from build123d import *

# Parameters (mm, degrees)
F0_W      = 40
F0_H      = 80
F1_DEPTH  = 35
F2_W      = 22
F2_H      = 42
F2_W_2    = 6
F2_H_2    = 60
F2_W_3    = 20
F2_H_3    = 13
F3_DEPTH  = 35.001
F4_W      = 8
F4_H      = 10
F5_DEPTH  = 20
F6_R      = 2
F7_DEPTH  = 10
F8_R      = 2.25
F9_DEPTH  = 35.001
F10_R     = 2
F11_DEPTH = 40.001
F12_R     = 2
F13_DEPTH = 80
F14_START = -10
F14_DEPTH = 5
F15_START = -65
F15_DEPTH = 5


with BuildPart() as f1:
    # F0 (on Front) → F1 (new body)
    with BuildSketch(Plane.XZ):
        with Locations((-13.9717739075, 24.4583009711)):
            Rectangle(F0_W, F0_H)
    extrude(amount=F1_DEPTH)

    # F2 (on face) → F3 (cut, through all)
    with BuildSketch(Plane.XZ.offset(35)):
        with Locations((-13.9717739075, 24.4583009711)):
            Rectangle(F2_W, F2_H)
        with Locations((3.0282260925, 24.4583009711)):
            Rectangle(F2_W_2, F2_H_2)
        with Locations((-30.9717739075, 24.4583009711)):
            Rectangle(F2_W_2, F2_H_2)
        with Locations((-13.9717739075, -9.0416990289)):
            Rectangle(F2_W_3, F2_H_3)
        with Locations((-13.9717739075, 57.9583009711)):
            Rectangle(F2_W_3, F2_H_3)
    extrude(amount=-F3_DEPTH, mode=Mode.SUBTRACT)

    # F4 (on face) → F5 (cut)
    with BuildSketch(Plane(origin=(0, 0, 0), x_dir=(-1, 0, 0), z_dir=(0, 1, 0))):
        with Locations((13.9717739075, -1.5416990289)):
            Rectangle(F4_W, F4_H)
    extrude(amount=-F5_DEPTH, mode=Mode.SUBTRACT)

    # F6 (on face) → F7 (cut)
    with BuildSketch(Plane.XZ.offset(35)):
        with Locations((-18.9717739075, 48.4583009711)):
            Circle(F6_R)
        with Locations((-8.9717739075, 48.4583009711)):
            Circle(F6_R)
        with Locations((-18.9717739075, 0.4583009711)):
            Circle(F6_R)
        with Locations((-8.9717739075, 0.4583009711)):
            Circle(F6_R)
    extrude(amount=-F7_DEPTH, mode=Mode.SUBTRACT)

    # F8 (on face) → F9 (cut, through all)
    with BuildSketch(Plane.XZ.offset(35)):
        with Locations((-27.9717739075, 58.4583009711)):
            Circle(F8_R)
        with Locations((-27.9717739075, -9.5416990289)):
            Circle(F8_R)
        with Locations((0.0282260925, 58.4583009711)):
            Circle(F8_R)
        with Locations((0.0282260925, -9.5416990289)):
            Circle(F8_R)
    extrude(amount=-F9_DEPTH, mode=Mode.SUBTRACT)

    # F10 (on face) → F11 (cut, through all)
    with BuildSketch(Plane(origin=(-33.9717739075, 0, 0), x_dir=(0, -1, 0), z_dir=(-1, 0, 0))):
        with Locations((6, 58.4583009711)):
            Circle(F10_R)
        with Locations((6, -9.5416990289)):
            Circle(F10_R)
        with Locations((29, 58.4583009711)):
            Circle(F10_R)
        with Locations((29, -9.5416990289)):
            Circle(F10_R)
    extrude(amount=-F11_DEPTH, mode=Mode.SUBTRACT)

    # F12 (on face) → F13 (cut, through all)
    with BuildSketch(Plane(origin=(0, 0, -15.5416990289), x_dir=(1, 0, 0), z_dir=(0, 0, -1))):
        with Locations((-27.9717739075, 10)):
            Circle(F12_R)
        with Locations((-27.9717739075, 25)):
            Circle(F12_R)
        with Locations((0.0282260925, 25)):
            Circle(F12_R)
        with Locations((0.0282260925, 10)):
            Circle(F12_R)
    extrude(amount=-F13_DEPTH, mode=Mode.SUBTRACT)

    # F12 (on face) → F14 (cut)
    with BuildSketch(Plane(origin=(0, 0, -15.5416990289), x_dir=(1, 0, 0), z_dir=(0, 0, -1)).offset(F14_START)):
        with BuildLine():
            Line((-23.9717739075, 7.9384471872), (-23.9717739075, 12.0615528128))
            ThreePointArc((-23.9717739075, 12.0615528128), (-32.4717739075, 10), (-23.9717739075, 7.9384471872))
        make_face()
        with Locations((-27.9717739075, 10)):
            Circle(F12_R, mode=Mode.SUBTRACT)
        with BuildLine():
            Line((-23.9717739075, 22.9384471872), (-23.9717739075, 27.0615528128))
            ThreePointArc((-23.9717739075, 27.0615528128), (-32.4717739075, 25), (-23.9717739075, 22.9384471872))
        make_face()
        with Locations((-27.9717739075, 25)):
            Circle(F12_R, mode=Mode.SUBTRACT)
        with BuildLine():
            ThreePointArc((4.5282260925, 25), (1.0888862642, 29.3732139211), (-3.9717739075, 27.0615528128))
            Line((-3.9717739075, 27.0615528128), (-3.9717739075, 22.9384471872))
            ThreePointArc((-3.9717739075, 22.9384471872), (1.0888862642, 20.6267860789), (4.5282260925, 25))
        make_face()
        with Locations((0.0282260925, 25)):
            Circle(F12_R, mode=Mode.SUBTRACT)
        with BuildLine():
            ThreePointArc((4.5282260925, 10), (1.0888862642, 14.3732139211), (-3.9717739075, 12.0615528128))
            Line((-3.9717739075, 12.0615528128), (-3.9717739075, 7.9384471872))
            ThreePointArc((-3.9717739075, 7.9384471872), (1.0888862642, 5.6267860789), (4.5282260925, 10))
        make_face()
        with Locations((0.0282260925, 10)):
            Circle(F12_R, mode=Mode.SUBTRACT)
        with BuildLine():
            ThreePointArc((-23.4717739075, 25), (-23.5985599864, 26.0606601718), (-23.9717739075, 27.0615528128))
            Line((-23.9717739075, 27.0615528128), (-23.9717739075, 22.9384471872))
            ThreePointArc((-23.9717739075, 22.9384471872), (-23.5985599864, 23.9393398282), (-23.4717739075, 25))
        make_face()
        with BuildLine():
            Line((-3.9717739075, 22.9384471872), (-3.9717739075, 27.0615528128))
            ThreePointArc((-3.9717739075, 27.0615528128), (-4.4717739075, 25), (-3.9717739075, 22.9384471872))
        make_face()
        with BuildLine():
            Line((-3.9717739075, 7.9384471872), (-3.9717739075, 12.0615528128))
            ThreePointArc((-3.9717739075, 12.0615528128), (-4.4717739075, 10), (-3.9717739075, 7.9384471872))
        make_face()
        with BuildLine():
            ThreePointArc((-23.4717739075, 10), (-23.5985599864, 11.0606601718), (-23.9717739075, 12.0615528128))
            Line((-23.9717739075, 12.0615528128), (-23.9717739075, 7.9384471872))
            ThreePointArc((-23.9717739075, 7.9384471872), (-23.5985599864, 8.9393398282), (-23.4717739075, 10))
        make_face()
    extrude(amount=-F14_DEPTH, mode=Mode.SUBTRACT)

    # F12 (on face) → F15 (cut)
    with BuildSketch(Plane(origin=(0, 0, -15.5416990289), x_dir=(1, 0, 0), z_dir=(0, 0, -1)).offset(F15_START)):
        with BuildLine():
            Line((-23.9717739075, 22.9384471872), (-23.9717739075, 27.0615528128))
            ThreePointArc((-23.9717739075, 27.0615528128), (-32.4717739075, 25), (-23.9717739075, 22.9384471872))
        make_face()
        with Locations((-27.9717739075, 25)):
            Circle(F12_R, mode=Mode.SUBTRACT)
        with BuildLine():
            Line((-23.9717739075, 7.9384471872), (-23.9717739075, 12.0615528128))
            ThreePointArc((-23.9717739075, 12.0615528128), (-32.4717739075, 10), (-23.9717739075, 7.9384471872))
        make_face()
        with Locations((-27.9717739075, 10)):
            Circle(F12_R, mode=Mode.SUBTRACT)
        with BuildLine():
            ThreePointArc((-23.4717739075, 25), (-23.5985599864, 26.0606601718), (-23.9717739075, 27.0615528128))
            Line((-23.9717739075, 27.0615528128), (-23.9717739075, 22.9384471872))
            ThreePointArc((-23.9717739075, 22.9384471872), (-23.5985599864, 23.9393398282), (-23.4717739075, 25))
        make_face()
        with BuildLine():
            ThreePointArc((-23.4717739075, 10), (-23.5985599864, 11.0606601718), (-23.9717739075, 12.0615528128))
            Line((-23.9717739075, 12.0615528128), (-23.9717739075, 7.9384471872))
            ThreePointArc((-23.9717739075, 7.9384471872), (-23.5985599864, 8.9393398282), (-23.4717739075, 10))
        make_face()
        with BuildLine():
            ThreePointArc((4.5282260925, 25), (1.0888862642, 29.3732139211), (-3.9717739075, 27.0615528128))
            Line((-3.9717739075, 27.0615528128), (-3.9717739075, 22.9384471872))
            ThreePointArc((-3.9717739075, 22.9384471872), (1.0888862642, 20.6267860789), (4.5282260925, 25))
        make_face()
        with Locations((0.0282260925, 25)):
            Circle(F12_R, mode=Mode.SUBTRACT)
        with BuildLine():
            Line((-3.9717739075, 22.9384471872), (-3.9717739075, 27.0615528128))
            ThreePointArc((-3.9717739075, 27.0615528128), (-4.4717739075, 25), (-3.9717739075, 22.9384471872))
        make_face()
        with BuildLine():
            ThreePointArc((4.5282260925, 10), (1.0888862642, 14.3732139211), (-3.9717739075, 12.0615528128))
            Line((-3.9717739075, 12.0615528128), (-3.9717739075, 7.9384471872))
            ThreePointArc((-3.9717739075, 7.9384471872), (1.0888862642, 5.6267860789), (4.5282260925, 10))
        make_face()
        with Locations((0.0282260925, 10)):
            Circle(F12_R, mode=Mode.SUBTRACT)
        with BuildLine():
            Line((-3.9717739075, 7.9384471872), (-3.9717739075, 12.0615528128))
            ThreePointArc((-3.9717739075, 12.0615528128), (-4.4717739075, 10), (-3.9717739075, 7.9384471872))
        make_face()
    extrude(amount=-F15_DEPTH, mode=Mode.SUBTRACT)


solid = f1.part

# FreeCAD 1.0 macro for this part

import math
import FreeCAD as App
import Part
import Sketcher
Q = App.Units.Quantity

doc = App.newDocument("Part")
body = doc.addObject("PartDesign::Body", "Body")

# Sketch on XZ plane
sketch1 = doc.addObject("Sketcher::SketchObject", "Sketch")
body.addObject(sketch1)
sketch1.AttachmentSupport = (doc.XZ_Plane, [""])
sketch1.MapMode = "FlatFace"
sketch1.addGeometry([
    Part.LineSegment(App.Vector(-34, 64, 0), App.Vector(-34, -16, 0)),
    Part.LineSegment(App.Vector(-34, -16, 0), App.Vector(6, -16, 0)),
    Part.LineSegment(App.Vector(6, -16, 0), App.Vector(6, 64, 0)),
    Part.LineSegment(App.Vector(6, 64, 0), App.Vector(-34, 64, 0)),
], False)
sketch1.addConstraint([
    Sketcher.Constraint("Coincident", 0, 2, 1, 1),
    Sketcher.Constraint("Coincident", 1, 2, 2, 1),
    Sketcher.Constraint("Coincident", 2, 2, 3, 1),
    Sketcher.Constraint("Coincident", 3, 2, 0, 1),
    Sketcher.Constraint("Vertical", 0),
    Sketcher.Constraint("Horizontal", 1),
    Sketcher.Constraint("Vertical", 2),
    Sketcher.Constraint("Horizontal", 3),
    Sketcher.Constraint("DistanceX", 1, 1, 1, 2, Q("40 mm")),
    Sketcher.Constraint("DistanceY", 0, 2, 0, 1, Q("80 mm")),
    Sketcher.Constraint("DistanceY", 0, 2, -1, 1, Q("15.541699 mm")),
    Sketcher.Constraint("DistanceX", 0, 2, -1, 1, Q("33.971774 mm")),
])
pad1 = doc.addObject("PartDesign::Pad", "Pad")
body.addObject(pad1)
pad1.Profile = sketch1
pad1.Length = 35

# Sketch on XZ plane
sketch2 = doc.addObject("Sketcher::SketchObject", "Sketch001")
body.addObject(sketch2)
sketch2.AttachmentSupport = (doc.XZ_Plane, [""])
sketch2.MapMode = "FlatFace"
sketch2.AttachmentOffset = App.Placement(App.Vector(0, 0, 35), App.Rotation())
sketch2.addGeometry([
    Part.LineSegment(App.Vector(-25, 45, 0), App.Vector(-25, 3, 0)),  # 0
    Part.LineSegment(App.Vector(-25, 3, 0), App.Vector(-3, 3, 0)),  # 1
    Part.LineSegment(App.Vector(-3, 3, 0), App.Vector(-3, 45, 0)),  # 2
    Part.LineSegment(App.Vector(-3, 45, 0), App.Vector(-25, 45, 0)),  # 3
    Part.LineSegment(App.Vector(0, 54, 0), App.Vector(0, -6, 0)),  # 4
    Part.LineSegment(App.Vector(0, -6, 0), App.Vector(6, -6, 0)),  # 5
    Part.LineSegment(App.Vector(6, -6, 0), App.Vector(6, 54, 0)),  # 6
    Part.LineSegment(App.Vector(6, 54, 0), App.Vector(0, 54, 0)),  # 7
    Part.LineSegment(App.Vector(-34, 54, 0), App.Vector(-34, -6, 0)),  # 8
    Part.LineSegment(App.Vector(-34, -6, 0), App.Vector(-28, -6, 0)),  # 9
    Part.LineSegment(App.Vector(-28, -6, 0), App.Vector(-28, 54, 0)),  # 10
    Part.LineSegment(App.Vector(-28, 54, 0), App.Vector(-34, 54, 0)),  # 11
    Part.LineSegment(App.Vector(-24, -3, 0), App.Vector(-24, -16, 0)),  # 12
    Part.LineSegment(App.Vector(-24, -16, 0), App.Vector(-4, -16, 0)),  # 13
    Part.LineSegment(App.Vector(-4, -16, 0), App.Vector(-4, -3, 0)),  # 14
    Part.LineSegment(App.Vector(-4, -3, 0), App.Vector(-24, -3, 0)),  # 15
    Part.LineSegment(App.Vector(-24, 64, 0), App.Vector(-24, 51, 0)),  # 16
    Part.LineSegment(App.Vector(-24, 51, 0), App.Vector(-4, 51, 0)),  # 17
    Part.LineSegment(App.Vector(-4, 51, 0), App.Vector(-4, 64, 0)),  # 18
    Part.LineSegment(App.Vector(-4, 64, 0), App.Vector(-24, 64, 0)),  # 19
], False)
sketch2.addConstraint([
    Sketcher.Constraint("Coincident", 0, 2, 1, 1),
    Sketcher.Constraint("Coincident", 1, 2, 2, 1),
    Sketcher.Constraint("Coincident", 2, 2, 3, 1),
    Sketcher.Constraint("Coincident", 3, 2, 0, 1),
    Sketcher.Constraint("Coincident", 4, 2, 5, 1),
    Sketcher.Constraint("Coincident", 5, 2, 6, 1),
    Sketcher.Constraint("Coincident", 6, 2, 7, 1),
    Sketcher.Constraint("Coincident", 7, 2, 4, 1),
    Sketcher.Constraint("Coincident", 8, 2, 9, 1),
    Sketcher.Constraint("Coincident", 9, 2, 10, 1),
    Sketcher.Constraint("Coincident", 10, 2, 11, 1),
    Sketcher.Constraint("Coincident", 11, 2, 8, 1),
    Sketcher.Constraint("Coincident", 12, 2, 13, 1),
    Sketcher.Constraint("Coincident", 13, 2, 14, 1),
    Sketcher.Constraint("Coincident", 14, 2, 15, 1),
    Sketcher.Constraint("Coincident", 15, 2, 12, 1),
    Sketcher.Constraint("Coincident", 16, 2, 17, 1),
    Sketcher.Constraint("Coincident", 17, 2, 18, 1),
    Sketcher.Constraint("Coincident", 18, 2, 19, 1),
    Sketcher.Constraint("Coincident", 19, 2, 16, 1),
    Sketcher.Constraint("Vertical", 0),
    Sketcher.Constraint("Horizontal", 1),
    Sketcher.Constraint("Vertical", 2),
    Sketcher.Constraint("Horizontal", 3),
    Sketcher.Constraint("Vertical", 4),
    Sketcher.Constraint("Horizontal", 5),
    Sketcher.Constraint("Vertical", 6),
    Sketcher.Constraint("Horizontal", 7),
    Sketcher.Constraint("Vertical", 8),
    Sketcher.Constraint("Horizontal", 9),
    Sketcher.Constraint("Vertical", 10),
    Sketcher.Constraint("Horizontal", 11),
    Sketcher.Constraint("Vertical", 12),
    Sketcher.Constraint("Horizontal", 13),
    Sketcher.Constraint("Vertical", 14),
    Sketcher.Constraint("Horizontal", 15),
    Sketcher.Constraint("Vertical", 16),
    Sketcher.Constraint("Horizontal", 17),
    Sketcher.Constraint("Vertical", 18),
    Sketcher.Constraint("Horizontal", 19),
    Sketcher.Constraint("Horizontal", 5, 2, 8, 2),
    Sketcher.Constraint("Horizontal", 7, 2, 10, 2),
    Sketcher.Constraint("Vertical", 15, 2, 16, 2),
    Sketcher.Constraint("Vertical", 14, 2, 17, 2),
    Sketcher.Constraint("Equal", 7, 9),
    Sketcher.Constraint("Equal", 14, 16),
    Sketcher.Constraint("DistanceX", 1, 1, 1, 2, Q("22 mm")),
    Sketcher.Constraint("DistanceX", 5, 1, 5, 2, Q("6 mm")),
    Sketcher.Constraint("DistanceX", 13, 1, 13, 2, Q("20 mm")),
    Sketcher.Constraint("DistanceY", 0, 2, 0, 1, Q("42 mm")),
    Sketcher.Constraint("DistanceY", 4, 2, 4, 1, Q("60 mm")),
    Sketcher.Constraint("DistanceY", 12, 2, 12, 1, Q("13 mm")),
    Sketcher.Constraint("DistanceX", 1, 2, 4, 2, Q("3 mm")),
    Sketcher.Constraint("DistanceY", 4, 2, 1, 2, Q("9 mm")),
    Sketcher.Constraint("DistanceX", 8, 2, 0, 2, Q("9 mm")),
    Sketcher.Constraint("DistanceX", 9, 2, 12, 2, Q("4 mm")),
    Sketcher.Constraint("DistanceY", 12, 2, 9, 2, Q("10 mm")),
    Sketcher.Constraint("DistanceY", 16, 2, 10, 2, Q("3 mm")),
    Sketcher.Constraint("DistanceY", -1, 1, 0, 2, Q("3.458301 mm")),
    Sketcher.Constraint("DistanceX", 0, 2, -1, 1, Q("24.971774 mm")),
])
pocket1 = doc.addObject("PartDesign::Pocket", "Pocket")
body.addObject(pocket1)
pocket1.Profile = sketch2
pocket1.Type = "ThroughAll"

# Sketch on XZ plane
sketch3 = doc.addObject("Sketcher::SketchObject", "Sketch002")
body.addObject(sketch3)
sketch3.AttachmentSupport = (doc.XZ_Plane, [""])
sketch3.MapMode = "FlatFace"
sketch3.addGeometry([
    Part.LineSegment(App.Vector(-10, 3, 0), App.Vector(-10, -7, 0)),
    Part.LineSegment(App.Vector(-10, -7, 0), App.Vector(-18, -7, 0)),
    Part.LineSegment(App.Vector(-18, -7, 0), App.Vector(-18, 3, 0)),
    Part.LineSegment(App.Vector(-18, 3, 0), App.Vector(-10, 3, 0)),
], False)
sketch3.addConstraint([
    Sketcher.Constraint("Coincident", 0, 2, 1, 1),
    Sketcher.Constraint("Coincident", 1, 2, 2, 1),
    Sketcher.Constraint("Coincident", 2, 2, 3, 1),
    Sketcher.Constraint("Coincident", 3, 2, 0, 1),
    Sketcher.Constraint("Vertical", 0),
    Sketcher.Constraint("Horizontal", 1),
    Sketcher.Constraint("Vertical", 2),
    Sketcher.Constraint("Horizontal", 3),
    Sketcher.Constraint("DistanceX", 1, 2, 1, 1, Q("8 mm")),
    Sketcher.Constraint("DistanceY", 0, 2, 0, 1, Q("10 mm")),
    Sketcher.Constraint("DistanceY", 0, 2, -1, 1, Q("6.541699 mm")),
    Sketcher.Constraint("DistanceX", 0, 2, -1, 1, Q("9.971774 mm")),
])
pocket2 = doc.addObject("PartDesign::Pocket", "Pocket001")
body.addObject(pocket2)
pocket2.Profile = sketch3
pocket2.Length = 20
pocket2.Reversed = True

# Sketch on XZ plane
sketch4 = doc.addObject("Sketcher::SketchObject", "Sketch003")
body.addObject(sketch4)
sketch4.AttachmentSupport = (doc.XZ_Plane, [""])
sketch4.MapMode = "FlatFace"
sketch4.AttachmentOffset = App.Placement(App.Vector(0, 0, 35), App.Rotation())
sketch4.addGeometry([
    Part.Circle(App.Vector(-19, 48.5, 0), App.Vector(0, 0, 1), 2),
    Part.Circle(App.Vector(-9, 48.5, 0), App.Vector(0, 0, 1), 2),
    Part.Circle(App.Vector(-19, 0.5, 0), App.Vector(0, 0, 1), 2),
    Part.Circle(App.Vector(-9, 0.5, 0), App.Vector(0, 0, 1), 2),
], False)
sketch4.addConstraint([
    Sketcher.Constraint("Equal", 0, 1),
    Sketcher.Constraint("Equal", 1, 2),
    Sketcher.Constraint("Equal", 2, 3),
    Sketcher.Constraint("Horizontal", 0, 3, 1, 3),
    Sketcher.Constraint("Horizontal", 2, 3, 3, 3),
    Sketcher.Constraint("Vertical", 0, 3, 2, 3),
    Sketcher.Constraint("Vertical", 1, 3, 3, 3),
    Sketcher.Constraint("Diameter", 0, Q("4 mm")),
    Sketcher.Constraint("DistanceX", 0, 3, 1, 3, Q("10 mm")),
    Sketcher.Constraint("DistanceY", 2, 3, 0, 3, Q("48 mm")),
    Sketcher.Constraint("DistanceY", -1, 1, 0, 3, Q("48.458301 mm")),
    Sketcher.Constraint("DistanceX", 0, 3, -1, 1, Q("18.971774 mm")),
])
pocket3 = doc.addObject("PartDesign::Pocket", "Pocket002")
body.addObject(pocket3)
pocket3.Profile = sketch4
pocket3.Length = 10

# Sketch on XZ plane
sketch5 = doc.addObject("Sketcher::SketchObject", "Sketch004")
body.addObject(sketch5)
sketch5.AttachmentSupport = (doc.XZ_Plane, [""])
sketch5.MapMode = "FlatFace"
sketch5.AttachmentOffset = App.Placement(App.Vector(0, 0, 35), App.Rotation())
sketch5.addGeometry([
    Part.Circle(App.Vector(-28, 58.5, 0), App.Vector(0, 0, 1), 2.2),
    Part.Circle(App.Vector(-28, -9.5, 0), App.Vector(0, 0, 1), 2.2),
    Part.Circle(App.Vector(0, 58.5, 0), App.Vector(0, 0, 1), 2.2),
    Part.Circle(App.Vector(0, -9.5, 0), App.Vector(0, 0, 1), 2.2),
], False)
sketch5.addConstraint([
    Sketcher.Constraint("Equal", 0, 1),
    Sketcher.Constraint("Equal", 1, 2),
    Sketcher.Constraint("Equal", 2, 3),
    Sketcher.Constraint("Horizontal", 0, 3, 2, 3),
    Sketcher.Constraint("Horizontal", 1, 3, 3, 3),
    Sketcher.Constraint("Vertical", 0, 3, 1, 3),
    Sketcher.Constraint("Vertical", 2, 3, 3, 3),
    Sketcher.Constraint("Diameter", 0, Q("4.5 mm")),
    Sketcher.Constraint("DistanceY", 1, 3, 0, 3, Q("68 mm")),
    Sketcher.Constraint("DistanceX", 0, 3, 2, 3, Q("28 mm")),
    Sketcher.Constraint("DistanceY", -1, 1, 0, 3, Q("58.458301 mm")),
    Sketcher.Constraint("DistanceX", 0, 3, -1, 1, Q("27.971774 mm")),
])
pocket4 = doc.addObject("PartDesign::Pocket", "Pocket003")
body.addObject(pocket4)
pocket4.Profile = sketch5
pocket4.Type = "ThroughAll"

# Sketch on YZ plane
sketch6 = doc.addObject("Sketcher::SketchObject", "Sketch005")
body.addObject(sketch6)
sketch6.AttachmentSupport = (doc.YZ_Plane, [""])
sketch6.MapMode = "FlatFace"
sketch6.AttachmentOffset = App.Placement(App.Vector(0, 0, -33.971774), App.Rotation())
sketch6.addGeometry([
    Part.Circle(App.Vector(-6, 58.5, 0), App.Vector(0, 0, 1), 2),
    Part.Circle(App.Vector(-6, -9.5, 0), App.Vector(0, 0, 1), 2),
    Part.Circle(App.Vector(-29, 58.5, 0), App.Vector(0, 0, 1), 2),
    Part.Circle(App.Vector(-29, -9.5, 0), App.Vector(0, 0, 1), 2),
], False)
sketch6.addConstraint([
    Sketcher.Constraint("Equal", 0, 1),
    Sketcher.Constraint("Equal", 1, 2),
    Sketcher.Constraint("Equal", 2, 3),
    Sketcher.Constraint("Horizontal", 0, 3, 2, 3),
    Sketcher.Constraint("Horizontal", 1, 3, 3, 3),
    Sketcher.Constraint("Vertical", 0, 3, 1, 3),
    Sketcher.Constraint("Vertical", 2, 3, 3, 3),
    Sketcher.Constraint("Diameter", 0, Q("4 mm")),
    Sketcher.Constraint("DistanceX", 0, 3, -1, 1, Q("6 mm")),
    Sketcher.Constraint("DistanceX", 2, 3, -1, 1, Q("29 mm")),
    Sketcher.Constraint("DistanceY", 1, 3, 0, 3, Q("68 mm")),
    Sketcher.Constraint("DistanceY", -1, 1, 0, 3, Q("58.458301 mm")),
])
pocket5 = doc.addObject("PartDesign::Pocket", "Pocket004")
body.addObject(pocket5)
pocket5.Profile = sketch6
pocket5.Type = "ThroughAll"
pocket5.Reversed = True

# Sketch on XY plane
sketch7 = doc.addObject("Sketcher::SketchObject", "Sketch006")
body.addObject(sketch7)
sketch7.AttachmentSupport = (doc.XY_Plane, [""])
sketch7.MapMode = "FlatFace"
sketch7.AttachmentOffset = App.Placement(App.Vector(0, 0, -15.541699), App.Rotation())
sketch7.addGeometry([
    Part.Circle(App.Vector(-28, -10, 0), App.Vector(0, 0, 1), 2),
    Part.Circle(App.Vector(-28, -25, 0), App.Vector(0, 0, 1), 2),
    Part.Circle(App.Vector(0, -25, 0), App.Vector(0, 0, 1), 2),
    Part.Circle(App.Vector(0, -10, 0), App.Vector(0, 0, 1), 2),
], False)
sketch7.addConstraint([
    Sketcher.Constraint("Equal", 0, 1),
    Sketcher.Constraint("Equal", 1, 2),
    Sketcher.Constraint("Equal", 2, 3),
    Sketcher.Constraint("Horizontal", 1, 3, 2, 3),
    Sketcher.Constraint("Horizontal", 0, 3, 3, 3),
    Sketcher.Constraint("Vertical", 0, 3, 1, 3),
    Sketcher.Constraint("Vertical", 2, 3, 3, 3),
    Sketcher.Constraint("Diameter", 0, Q("4 mm")),
    Sketcher.Constraint("DistanceY", 0, 3, -1, 1, Q("10 mm")),
    Sketcher.Constraint("DistanceY", 1, 3, -1, 1, Q("25 mm")),
    Sketcher.Constraint("DistanceX", 1, 3, 2, 3, Q("28 mm")),
    Sketcher.Constraint("DistanceX", 0, 3, -1, 1, Q("27.971774 mm")),
])
pocket6 = doc.addObject("PartDesign::Pocket", "Pocket005")
body.addObject(pocket6)
pocket6.Profile = sketch7
pocket6.Type = "ThroughAll"
pocket6.Reversed = True

# Sketch on XY plane
sketch8 = doc.addObject("Sketcher::SketchObject", "Sketch007")
body.addObject(sketch8)
sketch8.AttachmentSupport = (doc.XY_Plane, [""])
sketch8.MapMode = "FlatFace"
sketch8.AttachmentOffset = App.Placement(App.Vector(0, 0, -5.541699), App.Rotation())
sketch8.addGeometry([
    Part.ArcOfCircle(Part.Circle(App.Vector(-28, -10, 0), App.Vector(0, 0, 1), 4.5), math.radians(27), math.radians(333)),  # 0
    Part.ArcOfCircle(Part.Circle(App.Vector(-28, -10, 0), App.Vector(0, 0, 1), 4.5), math.radians(0), math.radians(27)),  # 1
    Part.ArcOfCircle(Part.Circle(App.Vector(-28, -10, 0), App.Vector(0, 0, 1), 4.5), math.radians(-27), math.radians(0)),  # 2
    Part.Circle(App.Vector(-28, -10, 0), App.Vector(0, 0, 1), 2),  # 3
    Part.ArcOfCircle(Part.Circle(App.Vector(-28, -25, 0), App.Vector(0, 0, 1), 4.5), math.radians(27), math.radians(333)),  # 4
    Part.ArcOfCircle(Part.Circle(App.Vector(-28, -25, 0), App.Vector(0, 0, 1), 4.5), math.radians(0), math.radians(27)),  # 5
    Part.ArcOfCircle(Part.Circle(App.Vector(-28, -25, 0), App.Vector(0, 0, 1), 4.5), math.radians(-27), math.radians(0)),  # 6
    Part.Circle(App.Vector(-28, -25, 0), App.Vector(0, 0, 1), 2),  # 7
    Part.ArcOfCircle(Part.Circle(App.Vector(0, -25, 0), App.Vector(0, 0, 1), 4.5), math.radians(-153), math.radians(0)),  # 8
    Part.ArcOfCircle(Part.Circle(App.Vector(0, -25, 0), App.Vector(0, 0, 1), 4.5), math.radians(153), math.radians(207)),  # 9
    Part.ArcOfCircle(Part.Circle(App.Vector(0, -25, 0), App.Vector(0, 0, 1), 4.5), math.radians(0), math.radians(153)),  # 10
    Part.Circle(App.Vector(0, -25, 0), App.Vector(0, 0, 1), 2),  # 11
    Part.ArcOfCircle(Part.Circle(App.Vector(0, -10, 0), App.Vector(0, 0, 1), 4.5), math.radians(-153), math.radians(0)),  # 12
    Part.ArcOfCircle(Part.Circle(App.Vector(0, -10, 0), App.Vector(0, 0, 1), 4.5), math.radians(153), math.radians(207)),  # 13
    Part.ArcOfCircle(Part.Circle(App.Vector(0, -10, 0), App.Vector(0, 0, 1), 4.5), math.radians(0), math.radians(153)),  # 14
    Part.Circle(App.Vector(0, -10, 0), App.Vector(0, 0, 1), 2),  # 15
], False)
sketch8.addConstraint([
    Sketcher.Constraint("Tangent", 0, 1, 1, 2),
    Sketcher.Constraint("Tangent", 1, 1, 2, 2),
    Sketcher.Constraint("Tangent", 2, 1, 0, 2),
    Sketcher.Constraint("Tangent", 4, 1, 5, 2),
    Sketcher.Constraint("Tangent", 5, 1, 6, 2),
    Sketcher.Constraint("Tangent", 6, 1, 4, 2),
    Sketcher.Constraint("Tangent", 8, 1, 9, 2),
    Sketcher.Constraint("Tangent", 9, 1, 10, 2),
    Sketcher.Constraint("Tangent", 10, 1, 8, 2),
    Sketcher.Constraint("Tangent", 12, 1, 13, 2),
    Sketcher.Constraint("Tangent", 13, 1, 14, 2),
    Sketcher.Constraint("Tangent", 14, 1, 12, 2),
    Sketcher.Constraint("Coincident", 3, 3, 0, 3),
    Sketcher.Constraint("Coincident", 7, 3, 4, 3),
    Sketcher.Constraint("Coincident", 11, 3, 8, 3),
    Sketcher.Constraint("Coincident", 15, 3, 12, 3),
    Sketcher.Constraint("Equal", 2, 4),
    Sketcher.Constraint("Equal", 3, 7),
    Sketcher.Constraint("Equal", 6, 8),
    Sketcher.Constraint("Equal", 7, 11),
    Sketcher.Constraint("Equal", 10, 12),
    Sketcher.Constraint("Equal", 11, 15),
    Sketcher.Constraint("Horizontal", 7, 3, 8, 3),
    Sketcher.Constraint("Horizontal", 3, 3, 12, 3),
    Sketcher.Constraint("Horizontal", 15, 3, 1, 1),
    Sketcher.Constraint("Horizontal", 11, 3, 5, 1),
    Sketcher.Constraint("Horizontal", 6, 1, 8, 1),
    Sketcher.Constraint("Horizontal", 4, 1, 9, 1),
    Sketcher.Constraint("Horizontal", 5, 1, 10, 1),
    Sketcher.Constraint("Horizontal", 2, 1, 12, 1),
    Sketcher.Constraint("Horizontal", 0, 1, 13, 1),
    Sketcher.Constraint("Horizontal", 1, 1, 14, 1),
    Sketcher.Constraint("Vertical", 3, 3, 4, 3),
    Sketcher.Constraint("Vertical", 11, 3, 12, 3),
    Sketcher.Constraint("Vertical", 0, 1, 2, 1),
    Sketcher.Constraint("Vertical", 2, 1, 4, 1),
    Sketcher.Constraint("Vertical", 4, 1, 6, 1),
    Sketcher.Constraint("Diameter", 3, Q("4 mm")),
    Sketcher.Constraint("Radius", 0, Q("4.5 mm")),
    Sketcher.Constraint("DistanceY", 0, 3, -1, 1, Q("10 mm")),
    Sketcher.Constraint("DistanceY", 4, 3, -1, 1, Q("25 mm")),
    Sketcher.Constraint("DistanceX", 4, 3, 8, 3, Q("28 mm")),
    Sketcher.Constraint("DistanceX", 0, 3, 0, 1, Q("4 mm")),
    Sketcher.Constraint("DistanceX", 0, 3, -1, 1, Q("27.971774 mm")),
])
pocket7 = doc.addObject("PartDesign::Pocket", "Pocket006")
body.addObject(pocket7)
pocket7.Profile = sketch8
pocket7.Length = 5
pocket7.Reversed = True

# Sketch on XY plane
sketch9 = doc.addObject("Sketcher::SketchObject", "Sketch008")
body.addObject(sketch9)
sketch9.AttachmentSupport = (doc.XY_Plane, [""])
sketch9.MapMode = "FlatFace"
sketch9.AttachmentOffset = App.Placement(App.Vector(0, 0, 49.458301), App.Rotation())
sketch9.addGeometry([
    Part.ArcOfCircle(Part.Circle(App.Vector(-28, -25, 0), App.Vector(0, 0, 1), 4.5), math.radians(27), math.radians(333)),  # 0
    Part.ArcOfCircle(Part.Circle(App.Vector(-28, -25, 0), App.Vector(0, 0, 1), 4.5), math.radians(0), math.radians(27)),  # 1
    Part.ArcOfCircle(Part.Circle(App.Vector(-28, -25, 0), App.Vector(0, 0, 1), 4.5), math.radians(-27), math.radians(0)),  # 2
    Part.Circle(App.Vector(-28, -25, 0), App.Vector(0, 0, 1), 2),  # 3
    Part.ArcOfCircle(Part.Circle(App.Vector(-28, -10, 0), App.Vector(0, 0, 1), 4.5), math.radians(27), math.radians(333)),  # 4
    Part.ArcOfCircle(Part.Circle(App.Vector(-28, -10, 0), App.Vector(0, 0, 1), 4.5), math.radians(0), math.radians(27)),  # 5
    Part.ArcOfCircle(Part.Circle(App.Vector(-28, -10, 0), App.Vector(0, 0, 1), 4.5), math.radians(-27), math.radians(0)),  # 6
    Part.Circle(App.Vector(-28, -10, 0), App.Vector(0, 0, 1), 2),  # 7
    Part.ArcOfCircle(Part.Circle(App.Vector(0, -25, 0), App.Vector(0, 0, 1), 4.5), math.radians(-153), math.radians(0)),  # 8
    Part.ArcOfCircle(Part.Circle(App.Vector(0, -25, 0), App.Vector(0, 0, 1), 4.5), math.radians(153), math.radians(207)),  # 9
    Part.ArcOfCircle(Part.Circle(App.Vector(0, -25, 0), App.Vector(0, 0, 1), 4.5), math.radians(0), math.radians(153)),  # 10
    Part.Circle(App.Vector(0, -25, 0), App.Vector(0, 0, 1), 2),  # 11
    Part.ArcOfCircle(Part.Circle(App.Vector(0, -10, 0), App.Vector(0, 0, 1), 4.5), math.radians(-153), math.radians(0)),  # 12
    Part.ArcOfCircle(Part.Circle(App.Vector(0, -10, 0), App.Vector(0, 0, 1), 4.5), math.radians(153), math.radians(207)),  # 13
    Part.ArcOfCircle(Part.Circle(App.Vector(0, -10, 0), App.Vector(0, 0, 1), 4.5), math.radians(0), math.radians(153)),  # 14
    Part.Circle(App.Vector(0, -10, 0), App.Vector(0, 0, 1), 2),  # 15
], False)
sketch9.addConstraint([
    Sketcher.Constraint("Tangent", 0, 1, 1, 2),
    Sketcher.Constraint("Tangent", 1, 1, 2, 2),
    Sketcher.Constraint("Tangent", 2, 1, 0, 2),
    Sketcher.Constraint("Tangent", 4, 1, 5, 2),
    Sketcher.Constraint("Tangent", 5, 1, 6, 2),
    Sketcher.Constraint("Tangent", 6, 1, 4, 2),
    Sketcher.Constraint("Tangent", 8, 1, 9, 2),
    Sketcher.Constraint("Tangent", 9, 1, 10, 2),
    Sketcher.Constraint("Tangent", 10, 1, 8, 2),
    Sketcher.Constraint("Tangent", 12, 1, 13, 2),
    Sketcher.Constraint("Tangent", 13, 1, 14, 2),
    Sketcher.Constraint("Tangent", 14, 1, 12, 2),
    Sketcher.Constraint("Coincident", 3, 3, 0, 3),
    Sketcher.Constraint("Coincident", 7, 3, 4, 3),
    Sketcher.Constraint("Coincident", 11, 3, 8, 3),
    Sketcher.Constraint("Coincident", 15, 3, 12, 3),
    Sketcher.Constraint("Equal", 2, 4),
    Sketcher.Constraint("Equal", 3, 7),
    Sketcher.Constraint("Equal", 6, 8),
    Sketcher.Constraint("Equal", 7, 11),
    Sketcher.Constraint("Equal", 10, 12),
    Sketcher.Constraint("Equal", 11, 15),
    Sketcher.Constraint("Horizontal", 3, 3, 8, 3),
    Sketcher.Constraint("Horizontal", 7, 3, 12, 3),
    Sketcher.Constraint("Horizontal", 11, 3, 1, 1),
    Sketcher.Constraint("Horizontal", 15, 3, 5, 1),
    Sketcher.Constraint("Horizontal", 2, 1, 8, 1),
    Sketcher.Constraint("Horizontal", 0, 1, 9, 1),
    Sketcher.Constraint("Horizontal", 1, 1, 10, 1),
    Sketcher.Constraint("Horizontal", 6, 1, 12, 1),
    Sketcher.Constraint("Horizontal", 4, 1, 13, 1),
    Sketcher.Constraint("Horizontal", 5, 1, 14, 1),
    Sketcher.Constraint("Vertical", 3, 3, 4, 3),
    Sketcher.Constraint("Vertical", 11, 3, 12, 3),
    Sketcher.Constraint("Vertical", 0, 1, 2, 1),
    Sketcher.Constraint("Vertical", 2, 1, 4, 1),
    Sketcher.Constraint("Vertical", 4, 1, 6, 1),
    Sketcher.Constraint("Diameter", 3, Q("4 mm")),
    Sketcher.Constraint("Radius", 0, Q("4.5 mm")),
    Sketcher.Constraint("DistanceY", 0, 3, -1, 1, Q("25 mm")),
    Sketcher.Constraint("DistanceY", 4, 3, -1, 1, Q("10 mm")),
    Sketcher.Constraint("DistanceX", 0, 3, 8, 3, Q("28 mm")),
    Sketcher.Constraint("DistanceX", 0, 3, 0, 1, Q("4 mm")),
    Sketcher.Constraint("DistanceX", 0, 3, -1, 1, Q("27.971774 mm")),
])
pocket8 = doc.addObject("PartDesign::Pocket", "Pocket007")
body.addObject(pocket8)
pocket8.Profile = sketch9
pocket8.Length = 5
pocket8.Reversed = True

doc.recompute()
